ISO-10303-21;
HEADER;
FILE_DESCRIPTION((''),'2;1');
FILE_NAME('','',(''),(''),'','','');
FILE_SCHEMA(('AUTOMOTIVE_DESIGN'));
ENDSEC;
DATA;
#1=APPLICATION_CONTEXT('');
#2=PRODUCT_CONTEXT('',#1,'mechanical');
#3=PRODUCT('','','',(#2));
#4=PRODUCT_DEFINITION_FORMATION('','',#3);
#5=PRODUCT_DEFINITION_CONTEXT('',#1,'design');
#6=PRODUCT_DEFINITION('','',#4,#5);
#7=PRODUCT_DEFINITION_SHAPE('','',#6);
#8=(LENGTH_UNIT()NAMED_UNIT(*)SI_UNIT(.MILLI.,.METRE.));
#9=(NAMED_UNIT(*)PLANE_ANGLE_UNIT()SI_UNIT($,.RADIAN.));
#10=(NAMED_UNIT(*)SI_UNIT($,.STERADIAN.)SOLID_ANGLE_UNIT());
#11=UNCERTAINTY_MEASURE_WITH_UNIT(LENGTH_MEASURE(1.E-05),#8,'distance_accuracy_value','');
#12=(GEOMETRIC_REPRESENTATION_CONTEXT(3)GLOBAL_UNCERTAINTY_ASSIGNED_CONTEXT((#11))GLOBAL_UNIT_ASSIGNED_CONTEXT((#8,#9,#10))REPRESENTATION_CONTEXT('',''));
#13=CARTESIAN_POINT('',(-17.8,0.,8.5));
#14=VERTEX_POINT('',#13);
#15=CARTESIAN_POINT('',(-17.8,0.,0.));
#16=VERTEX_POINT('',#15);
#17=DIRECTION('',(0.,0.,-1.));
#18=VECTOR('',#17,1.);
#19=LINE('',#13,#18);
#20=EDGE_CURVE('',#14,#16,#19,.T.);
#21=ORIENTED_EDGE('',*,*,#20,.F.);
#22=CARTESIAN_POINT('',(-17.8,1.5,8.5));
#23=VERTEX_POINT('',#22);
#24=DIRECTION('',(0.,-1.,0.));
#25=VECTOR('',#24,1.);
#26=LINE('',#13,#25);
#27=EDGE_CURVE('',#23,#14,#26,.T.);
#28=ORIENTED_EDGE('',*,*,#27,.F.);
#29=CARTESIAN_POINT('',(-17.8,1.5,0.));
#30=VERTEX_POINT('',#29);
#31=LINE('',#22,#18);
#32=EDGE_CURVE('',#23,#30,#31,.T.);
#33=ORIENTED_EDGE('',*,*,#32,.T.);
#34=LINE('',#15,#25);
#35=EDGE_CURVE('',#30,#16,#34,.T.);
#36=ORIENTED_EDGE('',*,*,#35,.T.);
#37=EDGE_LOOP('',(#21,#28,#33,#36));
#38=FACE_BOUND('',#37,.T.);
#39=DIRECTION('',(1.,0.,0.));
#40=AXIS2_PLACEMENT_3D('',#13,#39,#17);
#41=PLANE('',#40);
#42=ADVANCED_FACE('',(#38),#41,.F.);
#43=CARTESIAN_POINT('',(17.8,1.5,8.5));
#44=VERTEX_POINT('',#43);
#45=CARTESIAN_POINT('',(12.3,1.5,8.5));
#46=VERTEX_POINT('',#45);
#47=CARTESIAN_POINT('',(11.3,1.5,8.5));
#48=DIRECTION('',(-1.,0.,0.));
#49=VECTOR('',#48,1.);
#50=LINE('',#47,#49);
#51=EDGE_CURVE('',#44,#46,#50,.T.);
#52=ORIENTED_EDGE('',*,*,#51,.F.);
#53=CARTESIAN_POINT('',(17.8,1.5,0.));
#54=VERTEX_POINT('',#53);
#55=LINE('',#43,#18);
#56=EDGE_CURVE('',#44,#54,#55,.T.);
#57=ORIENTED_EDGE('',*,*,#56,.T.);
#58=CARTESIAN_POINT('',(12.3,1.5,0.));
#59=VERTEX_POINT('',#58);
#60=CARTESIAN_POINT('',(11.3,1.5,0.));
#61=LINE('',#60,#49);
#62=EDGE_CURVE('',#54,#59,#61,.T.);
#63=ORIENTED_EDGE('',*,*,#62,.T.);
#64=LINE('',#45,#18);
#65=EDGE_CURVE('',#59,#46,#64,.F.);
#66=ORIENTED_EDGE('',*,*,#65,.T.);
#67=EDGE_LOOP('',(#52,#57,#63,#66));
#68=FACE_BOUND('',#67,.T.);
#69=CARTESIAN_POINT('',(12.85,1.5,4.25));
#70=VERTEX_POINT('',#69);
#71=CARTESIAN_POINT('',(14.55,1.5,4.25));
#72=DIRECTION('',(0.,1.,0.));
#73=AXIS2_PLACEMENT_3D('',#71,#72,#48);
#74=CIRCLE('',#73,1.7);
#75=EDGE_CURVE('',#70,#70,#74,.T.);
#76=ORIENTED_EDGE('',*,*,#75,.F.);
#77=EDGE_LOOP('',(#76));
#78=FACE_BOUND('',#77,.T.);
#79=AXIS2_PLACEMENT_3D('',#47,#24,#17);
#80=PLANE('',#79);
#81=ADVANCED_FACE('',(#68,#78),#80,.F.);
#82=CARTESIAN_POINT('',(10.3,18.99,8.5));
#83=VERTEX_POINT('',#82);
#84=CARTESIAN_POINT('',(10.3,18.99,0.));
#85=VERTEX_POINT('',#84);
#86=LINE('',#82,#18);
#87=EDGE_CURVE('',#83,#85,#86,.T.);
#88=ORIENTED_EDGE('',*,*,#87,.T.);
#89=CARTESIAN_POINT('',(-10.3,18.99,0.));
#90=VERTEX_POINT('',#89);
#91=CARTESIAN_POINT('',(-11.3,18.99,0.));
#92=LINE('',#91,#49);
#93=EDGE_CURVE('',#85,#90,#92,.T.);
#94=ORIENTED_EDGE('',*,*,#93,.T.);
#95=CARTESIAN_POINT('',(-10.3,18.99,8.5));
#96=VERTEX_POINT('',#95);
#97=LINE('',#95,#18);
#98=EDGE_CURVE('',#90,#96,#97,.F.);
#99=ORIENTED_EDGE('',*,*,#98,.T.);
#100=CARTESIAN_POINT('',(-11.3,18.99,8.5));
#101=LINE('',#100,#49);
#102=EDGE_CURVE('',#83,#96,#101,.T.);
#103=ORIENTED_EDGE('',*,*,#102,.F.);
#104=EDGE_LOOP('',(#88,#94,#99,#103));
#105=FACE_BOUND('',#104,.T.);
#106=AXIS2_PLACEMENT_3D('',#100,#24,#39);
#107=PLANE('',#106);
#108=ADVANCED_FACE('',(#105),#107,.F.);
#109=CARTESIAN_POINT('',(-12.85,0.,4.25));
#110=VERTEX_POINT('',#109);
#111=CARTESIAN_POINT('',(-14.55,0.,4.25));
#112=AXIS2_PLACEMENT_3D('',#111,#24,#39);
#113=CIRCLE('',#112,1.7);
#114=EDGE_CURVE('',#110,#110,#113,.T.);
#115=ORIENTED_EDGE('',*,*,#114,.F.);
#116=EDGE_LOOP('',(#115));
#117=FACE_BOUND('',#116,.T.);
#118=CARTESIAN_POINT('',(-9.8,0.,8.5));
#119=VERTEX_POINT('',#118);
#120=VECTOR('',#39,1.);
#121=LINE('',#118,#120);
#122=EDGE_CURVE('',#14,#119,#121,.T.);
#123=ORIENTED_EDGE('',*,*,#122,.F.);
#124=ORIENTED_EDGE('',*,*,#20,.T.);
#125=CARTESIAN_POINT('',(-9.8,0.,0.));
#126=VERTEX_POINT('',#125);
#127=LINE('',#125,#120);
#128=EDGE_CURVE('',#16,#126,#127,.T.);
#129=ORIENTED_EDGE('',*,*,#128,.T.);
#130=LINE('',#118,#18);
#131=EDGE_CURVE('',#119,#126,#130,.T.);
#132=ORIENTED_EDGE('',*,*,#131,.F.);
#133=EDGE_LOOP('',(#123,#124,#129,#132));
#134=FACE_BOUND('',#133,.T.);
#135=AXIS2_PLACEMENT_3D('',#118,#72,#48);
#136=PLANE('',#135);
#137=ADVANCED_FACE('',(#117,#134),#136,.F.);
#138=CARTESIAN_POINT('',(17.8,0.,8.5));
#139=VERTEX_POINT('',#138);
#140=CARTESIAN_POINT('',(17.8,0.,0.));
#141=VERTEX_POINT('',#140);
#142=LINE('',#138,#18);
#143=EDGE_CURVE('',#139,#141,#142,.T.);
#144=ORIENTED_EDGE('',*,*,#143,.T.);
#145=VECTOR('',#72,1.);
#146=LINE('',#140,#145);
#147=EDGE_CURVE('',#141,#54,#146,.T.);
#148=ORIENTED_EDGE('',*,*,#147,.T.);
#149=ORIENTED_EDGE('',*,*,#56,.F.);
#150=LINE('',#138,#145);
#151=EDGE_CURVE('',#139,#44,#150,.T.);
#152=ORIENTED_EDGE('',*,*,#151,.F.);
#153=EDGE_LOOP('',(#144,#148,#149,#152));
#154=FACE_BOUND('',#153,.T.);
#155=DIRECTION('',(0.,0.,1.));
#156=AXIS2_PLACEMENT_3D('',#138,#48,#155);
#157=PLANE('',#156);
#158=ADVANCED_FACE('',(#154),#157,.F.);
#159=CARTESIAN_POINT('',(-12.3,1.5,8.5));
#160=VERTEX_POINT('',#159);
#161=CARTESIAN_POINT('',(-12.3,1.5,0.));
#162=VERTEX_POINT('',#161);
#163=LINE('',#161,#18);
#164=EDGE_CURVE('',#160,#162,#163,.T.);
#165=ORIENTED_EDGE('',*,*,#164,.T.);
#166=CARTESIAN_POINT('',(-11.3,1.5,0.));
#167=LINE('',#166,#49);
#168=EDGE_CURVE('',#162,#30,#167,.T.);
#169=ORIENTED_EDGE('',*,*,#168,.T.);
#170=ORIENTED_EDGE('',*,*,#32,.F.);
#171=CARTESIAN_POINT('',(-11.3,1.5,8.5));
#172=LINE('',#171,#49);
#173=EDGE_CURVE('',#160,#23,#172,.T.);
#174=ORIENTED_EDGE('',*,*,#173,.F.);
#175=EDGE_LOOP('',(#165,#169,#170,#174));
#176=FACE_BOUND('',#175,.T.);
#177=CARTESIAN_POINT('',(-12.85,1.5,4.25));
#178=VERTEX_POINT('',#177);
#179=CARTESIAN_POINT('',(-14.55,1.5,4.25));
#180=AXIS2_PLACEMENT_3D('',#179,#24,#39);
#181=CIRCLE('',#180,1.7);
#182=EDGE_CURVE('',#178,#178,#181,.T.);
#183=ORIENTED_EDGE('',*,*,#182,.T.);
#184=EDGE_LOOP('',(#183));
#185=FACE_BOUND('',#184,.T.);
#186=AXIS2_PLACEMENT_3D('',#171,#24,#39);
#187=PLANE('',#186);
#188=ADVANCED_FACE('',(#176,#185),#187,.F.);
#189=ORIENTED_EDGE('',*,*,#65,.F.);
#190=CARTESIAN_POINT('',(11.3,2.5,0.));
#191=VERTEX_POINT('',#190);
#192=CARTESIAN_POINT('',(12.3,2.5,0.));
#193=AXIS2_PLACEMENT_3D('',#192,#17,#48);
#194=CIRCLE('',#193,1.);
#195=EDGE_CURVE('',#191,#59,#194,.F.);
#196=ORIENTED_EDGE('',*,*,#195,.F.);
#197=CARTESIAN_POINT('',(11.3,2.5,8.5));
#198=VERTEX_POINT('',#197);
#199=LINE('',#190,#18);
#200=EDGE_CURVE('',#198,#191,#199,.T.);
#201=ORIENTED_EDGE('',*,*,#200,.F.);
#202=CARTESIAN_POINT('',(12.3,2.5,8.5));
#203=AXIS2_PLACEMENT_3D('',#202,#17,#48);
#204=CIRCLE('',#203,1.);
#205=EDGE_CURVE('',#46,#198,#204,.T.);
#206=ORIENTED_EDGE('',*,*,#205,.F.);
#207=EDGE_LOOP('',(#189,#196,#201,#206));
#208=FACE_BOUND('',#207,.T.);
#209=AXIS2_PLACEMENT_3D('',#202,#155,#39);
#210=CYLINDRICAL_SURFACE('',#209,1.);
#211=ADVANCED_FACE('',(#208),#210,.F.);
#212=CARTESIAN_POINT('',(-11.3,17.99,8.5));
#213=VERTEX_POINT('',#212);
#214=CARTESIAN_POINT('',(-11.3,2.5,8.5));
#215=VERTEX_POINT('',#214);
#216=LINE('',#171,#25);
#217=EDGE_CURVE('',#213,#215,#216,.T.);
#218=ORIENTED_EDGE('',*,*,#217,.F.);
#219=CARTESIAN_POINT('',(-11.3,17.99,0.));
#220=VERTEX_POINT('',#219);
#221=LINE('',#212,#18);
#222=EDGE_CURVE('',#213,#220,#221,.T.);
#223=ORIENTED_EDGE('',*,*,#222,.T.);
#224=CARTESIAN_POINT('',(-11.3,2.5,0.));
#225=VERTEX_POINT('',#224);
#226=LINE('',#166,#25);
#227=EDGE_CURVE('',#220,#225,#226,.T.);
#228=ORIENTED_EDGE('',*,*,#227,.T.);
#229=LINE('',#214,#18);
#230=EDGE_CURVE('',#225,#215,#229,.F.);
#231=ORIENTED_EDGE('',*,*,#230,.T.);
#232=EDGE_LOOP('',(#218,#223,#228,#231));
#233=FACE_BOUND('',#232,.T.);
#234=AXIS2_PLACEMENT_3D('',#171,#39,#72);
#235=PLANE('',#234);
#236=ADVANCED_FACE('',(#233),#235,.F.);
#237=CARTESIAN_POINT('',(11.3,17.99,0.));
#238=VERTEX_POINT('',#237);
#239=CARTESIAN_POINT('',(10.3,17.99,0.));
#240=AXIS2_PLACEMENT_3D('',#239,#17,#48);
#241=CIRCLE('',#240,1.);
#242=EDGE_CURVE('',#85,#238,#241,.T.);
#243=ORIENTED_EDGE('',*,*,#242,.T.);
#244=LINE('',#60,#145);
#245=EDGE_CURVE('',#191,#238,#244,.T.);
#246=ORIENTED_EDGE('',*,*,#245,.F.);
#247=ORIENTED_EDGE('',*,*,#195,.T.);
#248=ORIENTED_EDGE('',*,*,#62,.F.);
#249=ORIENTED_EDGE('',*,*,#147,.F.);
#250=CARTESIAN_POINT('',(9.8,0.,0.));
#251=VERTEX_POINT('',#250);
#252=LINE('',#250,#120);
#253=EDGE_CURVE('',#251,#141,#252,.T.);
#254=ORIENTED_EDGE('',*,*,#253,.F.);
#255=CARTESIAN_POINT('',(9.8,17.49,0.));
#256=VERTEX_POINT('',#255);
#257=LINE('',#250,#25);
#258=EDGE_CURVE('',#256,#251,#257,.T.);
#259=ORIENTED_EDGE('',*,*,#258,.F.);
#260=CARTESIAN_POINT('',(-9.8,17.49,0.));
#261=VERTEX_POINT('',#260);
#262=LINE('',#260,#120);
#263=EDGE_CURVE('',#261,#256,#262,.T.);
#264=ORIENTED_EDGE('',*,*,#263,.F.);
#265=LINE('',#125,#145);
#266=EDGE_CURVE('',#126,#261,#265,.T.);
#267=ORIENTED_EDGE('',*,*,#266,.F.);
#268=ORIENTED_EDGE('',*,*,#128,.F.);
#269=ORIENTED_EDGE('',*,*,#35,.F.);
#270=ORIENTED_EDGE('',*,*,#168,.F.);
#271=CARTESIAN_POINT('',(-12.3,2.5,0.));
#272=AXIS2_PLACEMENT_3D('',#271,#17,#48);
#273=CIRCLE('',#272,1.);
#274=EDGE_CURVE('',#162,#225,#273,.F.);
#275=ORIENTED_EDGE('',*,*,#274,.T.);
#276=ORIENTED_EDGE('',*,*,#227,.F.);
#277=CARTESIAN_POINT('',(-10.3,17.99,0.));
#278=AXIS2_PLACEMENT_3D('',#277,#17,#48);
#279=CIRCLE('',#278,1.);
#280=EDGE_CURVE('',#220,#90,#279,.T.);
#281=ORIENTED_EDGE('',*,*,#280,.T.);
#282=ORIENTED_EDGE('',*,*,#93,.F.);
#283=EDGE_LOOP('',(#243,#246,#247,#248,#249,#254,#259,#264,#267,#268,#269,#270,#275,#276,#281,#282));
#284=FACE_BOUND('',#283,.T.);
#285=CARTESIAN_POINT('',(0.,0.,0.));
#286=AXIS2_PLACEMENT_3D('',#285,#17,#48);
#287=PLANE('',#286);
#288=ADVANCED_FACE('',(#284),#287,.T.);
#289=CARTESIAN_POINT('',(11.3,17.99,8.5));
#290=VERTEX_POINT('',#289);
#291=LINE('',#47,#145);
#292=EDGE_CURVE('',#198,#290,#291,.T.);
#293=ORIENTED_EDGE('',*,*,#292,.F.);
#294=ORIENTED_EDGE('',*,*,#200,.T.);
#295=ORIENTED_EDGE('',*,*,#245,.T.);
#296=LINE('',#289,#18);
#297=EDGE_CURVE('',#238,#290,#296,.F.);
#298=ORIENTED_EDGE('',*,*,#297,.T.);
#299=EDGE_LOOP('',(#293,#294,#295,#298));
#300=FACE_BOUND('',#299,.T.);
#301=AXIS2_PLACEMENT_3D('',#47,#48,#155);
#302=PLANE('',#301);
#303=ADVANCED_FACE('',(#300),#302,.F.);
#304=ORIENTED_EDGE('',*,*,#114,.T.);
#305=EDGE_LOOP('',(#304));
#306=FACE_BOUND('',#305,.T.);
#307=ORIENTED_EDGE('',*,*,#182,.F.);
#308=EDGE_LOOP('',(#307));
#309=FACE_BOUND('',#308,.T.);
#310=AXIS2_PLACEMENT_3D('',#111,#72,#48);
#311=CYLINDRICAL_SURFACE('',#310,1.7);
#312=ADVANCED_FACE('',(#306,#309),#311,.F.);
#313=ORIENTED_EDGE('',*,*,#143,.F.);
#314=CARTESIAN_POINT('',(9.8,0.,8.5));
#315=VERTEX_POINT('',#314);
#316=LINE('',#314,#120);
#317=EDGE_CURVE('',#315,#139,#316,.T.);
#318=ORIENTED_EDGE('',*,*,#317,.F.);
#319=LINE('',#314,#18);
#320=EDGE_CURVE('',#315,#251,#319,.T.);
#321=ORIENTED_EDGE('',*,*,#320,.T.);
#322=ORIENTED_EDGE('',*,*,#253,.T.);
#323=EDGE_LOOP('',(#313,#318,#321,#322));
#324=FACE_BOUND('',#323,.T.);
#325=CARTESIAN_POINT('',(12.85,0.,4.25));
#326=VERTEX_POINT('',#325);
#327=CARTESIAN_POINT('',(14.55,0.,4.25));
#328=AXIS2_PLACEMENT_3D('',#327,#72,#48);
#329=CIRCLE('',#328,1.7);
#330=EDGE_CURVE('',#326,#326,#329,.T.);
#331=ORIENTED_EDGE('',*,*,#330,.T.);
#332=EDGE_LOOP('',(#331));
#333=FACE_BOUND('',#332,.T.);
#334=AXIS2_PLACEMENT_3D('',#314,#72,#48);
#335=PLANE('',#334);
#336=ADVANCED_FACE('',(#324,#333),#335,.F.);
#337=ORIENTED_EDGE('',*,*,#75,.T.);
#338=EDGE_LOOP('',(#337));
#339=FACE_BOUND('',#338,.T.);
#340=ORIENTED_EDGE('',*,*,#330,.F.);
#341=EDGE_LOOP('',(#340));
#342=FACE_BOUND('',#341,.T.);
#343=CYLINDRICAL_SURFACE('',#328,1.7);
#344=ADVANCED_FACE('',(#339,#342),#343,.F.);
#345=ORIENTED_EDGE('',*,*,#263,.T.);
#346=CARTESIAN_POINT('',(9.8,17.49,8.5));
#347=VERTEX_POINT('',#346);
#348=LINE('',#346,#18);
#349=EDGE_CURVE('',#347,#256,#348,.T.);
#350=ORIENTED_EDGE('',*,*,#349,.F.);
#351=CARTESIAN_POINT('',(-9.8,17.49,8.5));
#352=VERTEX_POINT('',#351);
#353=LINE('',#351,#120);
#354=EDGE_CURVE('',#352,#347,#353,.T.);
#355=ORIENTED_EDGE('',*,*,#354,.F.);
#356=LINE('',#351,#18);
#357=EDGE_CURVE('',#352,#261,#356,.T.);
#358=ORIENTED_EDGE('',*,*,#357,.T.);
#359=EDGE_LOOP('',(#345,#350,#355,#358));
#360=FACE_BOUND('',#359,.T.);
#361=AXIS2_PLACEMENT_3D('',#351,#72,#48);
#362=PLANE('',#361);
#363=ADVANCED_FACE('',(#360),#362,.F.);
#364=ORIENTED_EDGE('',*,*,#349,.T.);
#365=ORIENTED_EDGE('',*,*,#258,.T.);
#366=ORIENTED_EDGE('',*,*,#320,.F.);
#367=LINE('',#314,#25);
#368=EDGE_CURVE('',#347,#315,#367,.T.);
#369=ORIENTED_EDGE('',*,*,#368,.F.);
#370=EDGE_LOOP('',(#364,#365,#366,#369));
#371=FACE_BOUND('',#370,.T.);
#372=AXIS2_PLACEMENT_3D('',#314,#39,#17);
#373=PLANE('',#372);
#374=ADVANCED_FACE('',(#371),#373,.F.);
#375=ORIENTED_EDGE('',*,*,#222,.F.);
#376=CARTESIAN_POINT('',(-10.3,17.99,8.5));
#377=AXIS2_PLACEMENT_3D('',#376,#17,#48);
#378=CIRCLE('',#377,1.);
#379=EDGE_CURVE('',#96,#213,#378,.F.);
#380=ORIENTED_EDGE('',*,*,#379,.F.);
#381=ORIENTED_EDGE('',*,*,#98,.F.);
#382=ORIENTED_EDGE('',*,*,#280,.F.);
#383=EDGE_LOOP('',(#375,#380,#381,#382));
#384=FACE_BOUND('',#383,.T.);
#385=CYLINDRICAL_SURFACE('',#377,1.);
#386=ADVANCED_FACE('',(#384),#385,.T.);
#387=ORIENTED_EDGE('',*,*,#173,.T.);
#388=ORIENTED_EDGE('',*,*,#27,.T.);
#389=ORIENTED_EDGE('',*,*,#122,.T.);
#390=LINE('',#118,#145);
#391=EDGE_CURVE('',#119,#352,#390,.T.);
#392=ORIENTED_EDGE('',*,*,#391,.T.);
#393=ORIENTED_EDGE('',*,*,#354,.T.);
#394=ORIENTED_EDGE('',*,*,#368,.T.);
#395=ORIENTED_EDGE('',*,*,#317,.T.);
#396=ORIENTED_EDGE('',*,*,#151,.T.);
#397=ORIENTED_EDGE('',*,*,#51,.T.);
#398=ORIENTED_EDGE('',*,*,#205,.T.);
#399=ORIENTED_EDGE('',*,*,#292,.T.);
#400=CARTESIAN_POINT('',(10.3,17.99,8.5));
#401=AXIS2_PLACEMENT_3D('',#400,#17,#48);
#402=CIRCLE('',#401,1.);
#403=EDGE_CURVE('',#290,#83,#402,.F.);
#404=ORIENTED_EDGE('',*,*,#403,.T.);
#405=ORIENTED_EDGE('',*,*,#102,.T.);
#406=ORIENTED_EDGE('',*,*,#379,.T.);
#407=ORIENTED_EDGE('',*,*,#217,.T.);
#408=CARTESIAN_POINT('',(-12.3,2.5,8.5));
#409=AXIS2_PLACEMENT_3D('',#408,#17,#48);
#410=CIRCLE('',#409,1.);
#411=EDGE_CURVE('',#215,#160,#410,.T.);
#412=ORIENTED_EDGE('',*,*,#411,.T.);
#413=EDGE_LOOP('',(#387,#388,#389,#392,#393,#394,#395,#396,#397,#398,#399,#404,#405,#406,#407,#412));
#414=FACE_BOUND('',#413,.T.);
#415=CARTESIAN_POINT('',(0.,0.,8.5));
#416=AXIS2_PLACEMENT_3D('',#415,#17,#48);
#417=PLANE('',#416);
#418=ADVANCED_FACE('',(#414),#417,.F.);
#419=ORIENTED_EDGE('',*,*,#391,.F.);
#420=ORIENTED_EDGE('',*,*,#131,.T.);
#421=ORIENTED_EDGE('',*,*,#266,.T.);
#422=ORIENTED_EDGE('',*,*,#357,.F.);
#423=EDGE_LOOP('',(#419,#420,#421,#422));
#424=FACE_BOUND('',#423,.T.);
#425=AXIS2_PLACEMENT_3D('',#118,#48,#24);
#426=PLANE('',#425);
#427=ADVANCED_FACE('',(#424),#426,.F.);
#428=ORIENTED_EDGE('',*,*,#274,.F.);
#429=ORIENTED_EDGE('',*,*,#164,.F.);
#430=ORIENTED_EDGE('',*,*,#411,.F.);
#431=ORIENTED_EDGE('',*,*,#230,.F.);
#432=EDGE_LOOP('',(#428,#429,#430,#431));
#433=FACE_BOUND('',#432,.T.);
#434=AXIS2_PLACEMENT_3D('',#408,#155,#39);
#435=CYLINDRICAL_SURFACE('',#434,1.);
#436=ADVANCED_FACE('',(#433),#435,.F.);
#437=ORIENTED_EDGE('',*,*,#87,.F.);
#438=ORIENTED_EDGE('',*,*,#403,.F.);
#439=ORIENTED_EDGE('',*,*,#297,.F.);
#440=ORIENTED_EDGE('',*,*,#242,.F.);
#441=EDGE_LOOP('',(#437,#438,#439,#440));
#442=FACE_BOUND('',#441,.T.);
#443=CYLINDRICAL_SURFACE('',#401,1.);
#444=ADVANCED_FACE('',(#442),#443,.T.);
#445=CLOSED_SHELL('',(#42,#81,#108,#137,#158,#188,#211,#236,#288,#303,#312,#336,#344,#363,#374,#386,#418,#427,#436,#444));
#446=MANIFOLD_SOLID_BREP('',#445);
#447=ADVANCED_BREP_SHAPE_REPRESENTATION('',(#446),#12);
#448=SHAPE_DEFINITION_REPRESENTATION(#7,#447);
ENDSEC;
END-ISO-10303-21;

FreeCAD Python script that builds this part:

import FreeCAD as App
import Part
import Sketcher


def edges_at(feature, points):
    """Names of the edges that pass closest to the given points."""
    edges = feature.Shape.Edges
    near = lambda p: min(range(len(edges)), key=lambda i: edges[i].distToShape(Part.Vertex(*p))[0])
    return sorted({f"Edge{near(p) + 1}" for p in points})


def add_polygon(sketch, points):
    """Adds a closed chain of lines whose ends are joined by coincident constraints."""
    first, n = sketch.GeometryCount, len(points)
    for a, b in zip(points, points[1:] + points[:1]):
        sketch.addGeometry(Part.LineSegment(App.Vector(*a, 0), App.Vector(*b, 0)), False)
    for i in range(n):
        sketch.addConstraint(Sketcher.Constraint("Coincident", first + i, 2, first + (i + 1) % n, 1))

doc = App.newDocument("Part")
body = doc.addObject("PartDesign::Body", "Body")

sketch1 = doc.addObject("Sketcher::SketchObject", "Sketch")
body.addObject(sketch1)
sketch1.AttachmentSupport = (doc.XY_Plane, [""])
sketch1.MapMode = "FlatFace"
add_polygon(sketch1, [(-17.8, 1.5), (-17.8, 0), (-9.8, 0), (-9.8, 17.49), (9.8, 17.49), (9.8, 0), (17.8, 0), (17.8, 1.5), (11.3, 1.5), (11.3, 18.99), (-11.3, 18.99), (-11.3, 1.5)])
sketch1.addConstraint([
    Sketcher.Constraint("Vertical", 0),
    Sketcher.Constraint("Horizontal", 1),
    Sketcher.Constraint("Vertical", 2),
    Sketcher.Constraint("Horizontal", 3),
    Sketcher.Constraint("Vertical", 4),
    Sketcher.Constraint("Horizontal", 5),
    Sketcher.Constraint("Vertical", 6),
    Sketcher.Constraint("Horizontal", 7),
    Sketcher.Constraint("Vertical", 8),
    Sketcher.Constraint("Horizontal", 9),
    Sketcher.Constraint("Vertical", 10),
    Sketcher.Constraint("Horizontal", 11),
    Sketcher.Constraint("Symmetric", 1, 2, 4, 2, -1, 1),
    Sketcher.Constraint("Symmetric", 0, 2, 5, 2, -2),
    Sketcher.Constraint("Symmetric", 7, 2, 10, 2, -2),
    Sketcher.Constraint("Equal", 4, 8),
    Sketcher.Constraint("DistanceX", 1, 1, 1, 2, 8.0),
    Sketcher.Constraint("DistanceX", 3, 1, 3, 2, 19.6),
    Sketcher.Constraint("DistanceX", 7, 2, 7, 1, 6.5),
    Sketcher.Constraint("DistanceY", 0, 2, 0, 1, 1.5),
    Sketcher.Constraint("DistanceY", 2, 1, 2, 2, 17.49),
])
pad1 = doc.addObject("PartDesign::Pad", "Pad")
body.addObject(pad1)
pad1.Profile = sketch1
pad1.Length = 8.5

sketch2 = doc.addObject("Sketcher::SketchObject", "Sketch001")
body.addObject(sketch2)
sketch2.AttachmentSupport = (doc.XZ_Plane, [""])
sketch2.MapMode = "FlatFace"
sketch2.AttachmentOffset = App.Placement(App.Vector(0, 0, -1.5), App.Rotation())
sketch2.addGeometry(Part.Circle(App.Vector(14.55, 4.25, 0), App.Vector(0, 0, 1), 1.7), False)
sketch2.addConstraint([
    Sketcher.Constraint("Diameter", 0, 3.4),
    Sketcher.Constraint("DistanceX", -1, 1, 0, 3, 14.55),
    Sketcher.Constraint("DistanceY", -1, 1, 0, 3, 4.25),
])
pocket1 = doc.addObject("PartDesign::Pocket", "Pocket")
body.addObject(pocket1)
pocket1.Profile = sketch2
pocket1.Type = "ThroughAll"
pocket1.Reversed = True
doc.recompute()

fillet = doc.addObject("PartDesign::Fillet", "Fillet")
body.addObject(fillet)
fillet.Base = (pocket1, edges_at(pocket1, [
    (-11.3, 1.5, 4.25),
    (-11.3, 18.99, 4.25),
    (11.3, 18.99, 4.25),
    (11.3, 1.5, 4.25),
]))
fillet.Radius = 1
doc.recompute()

mirrored = doc.addObject("PartDesign::Mirrored", "Mirrored")
body.addObject(mirrored)
mirrored.Originals = [pocket1]
mirrored.MirrorPlane = (doc.YZ_Plane, [""])
body.Tip = mirrored

doc.recompute()
